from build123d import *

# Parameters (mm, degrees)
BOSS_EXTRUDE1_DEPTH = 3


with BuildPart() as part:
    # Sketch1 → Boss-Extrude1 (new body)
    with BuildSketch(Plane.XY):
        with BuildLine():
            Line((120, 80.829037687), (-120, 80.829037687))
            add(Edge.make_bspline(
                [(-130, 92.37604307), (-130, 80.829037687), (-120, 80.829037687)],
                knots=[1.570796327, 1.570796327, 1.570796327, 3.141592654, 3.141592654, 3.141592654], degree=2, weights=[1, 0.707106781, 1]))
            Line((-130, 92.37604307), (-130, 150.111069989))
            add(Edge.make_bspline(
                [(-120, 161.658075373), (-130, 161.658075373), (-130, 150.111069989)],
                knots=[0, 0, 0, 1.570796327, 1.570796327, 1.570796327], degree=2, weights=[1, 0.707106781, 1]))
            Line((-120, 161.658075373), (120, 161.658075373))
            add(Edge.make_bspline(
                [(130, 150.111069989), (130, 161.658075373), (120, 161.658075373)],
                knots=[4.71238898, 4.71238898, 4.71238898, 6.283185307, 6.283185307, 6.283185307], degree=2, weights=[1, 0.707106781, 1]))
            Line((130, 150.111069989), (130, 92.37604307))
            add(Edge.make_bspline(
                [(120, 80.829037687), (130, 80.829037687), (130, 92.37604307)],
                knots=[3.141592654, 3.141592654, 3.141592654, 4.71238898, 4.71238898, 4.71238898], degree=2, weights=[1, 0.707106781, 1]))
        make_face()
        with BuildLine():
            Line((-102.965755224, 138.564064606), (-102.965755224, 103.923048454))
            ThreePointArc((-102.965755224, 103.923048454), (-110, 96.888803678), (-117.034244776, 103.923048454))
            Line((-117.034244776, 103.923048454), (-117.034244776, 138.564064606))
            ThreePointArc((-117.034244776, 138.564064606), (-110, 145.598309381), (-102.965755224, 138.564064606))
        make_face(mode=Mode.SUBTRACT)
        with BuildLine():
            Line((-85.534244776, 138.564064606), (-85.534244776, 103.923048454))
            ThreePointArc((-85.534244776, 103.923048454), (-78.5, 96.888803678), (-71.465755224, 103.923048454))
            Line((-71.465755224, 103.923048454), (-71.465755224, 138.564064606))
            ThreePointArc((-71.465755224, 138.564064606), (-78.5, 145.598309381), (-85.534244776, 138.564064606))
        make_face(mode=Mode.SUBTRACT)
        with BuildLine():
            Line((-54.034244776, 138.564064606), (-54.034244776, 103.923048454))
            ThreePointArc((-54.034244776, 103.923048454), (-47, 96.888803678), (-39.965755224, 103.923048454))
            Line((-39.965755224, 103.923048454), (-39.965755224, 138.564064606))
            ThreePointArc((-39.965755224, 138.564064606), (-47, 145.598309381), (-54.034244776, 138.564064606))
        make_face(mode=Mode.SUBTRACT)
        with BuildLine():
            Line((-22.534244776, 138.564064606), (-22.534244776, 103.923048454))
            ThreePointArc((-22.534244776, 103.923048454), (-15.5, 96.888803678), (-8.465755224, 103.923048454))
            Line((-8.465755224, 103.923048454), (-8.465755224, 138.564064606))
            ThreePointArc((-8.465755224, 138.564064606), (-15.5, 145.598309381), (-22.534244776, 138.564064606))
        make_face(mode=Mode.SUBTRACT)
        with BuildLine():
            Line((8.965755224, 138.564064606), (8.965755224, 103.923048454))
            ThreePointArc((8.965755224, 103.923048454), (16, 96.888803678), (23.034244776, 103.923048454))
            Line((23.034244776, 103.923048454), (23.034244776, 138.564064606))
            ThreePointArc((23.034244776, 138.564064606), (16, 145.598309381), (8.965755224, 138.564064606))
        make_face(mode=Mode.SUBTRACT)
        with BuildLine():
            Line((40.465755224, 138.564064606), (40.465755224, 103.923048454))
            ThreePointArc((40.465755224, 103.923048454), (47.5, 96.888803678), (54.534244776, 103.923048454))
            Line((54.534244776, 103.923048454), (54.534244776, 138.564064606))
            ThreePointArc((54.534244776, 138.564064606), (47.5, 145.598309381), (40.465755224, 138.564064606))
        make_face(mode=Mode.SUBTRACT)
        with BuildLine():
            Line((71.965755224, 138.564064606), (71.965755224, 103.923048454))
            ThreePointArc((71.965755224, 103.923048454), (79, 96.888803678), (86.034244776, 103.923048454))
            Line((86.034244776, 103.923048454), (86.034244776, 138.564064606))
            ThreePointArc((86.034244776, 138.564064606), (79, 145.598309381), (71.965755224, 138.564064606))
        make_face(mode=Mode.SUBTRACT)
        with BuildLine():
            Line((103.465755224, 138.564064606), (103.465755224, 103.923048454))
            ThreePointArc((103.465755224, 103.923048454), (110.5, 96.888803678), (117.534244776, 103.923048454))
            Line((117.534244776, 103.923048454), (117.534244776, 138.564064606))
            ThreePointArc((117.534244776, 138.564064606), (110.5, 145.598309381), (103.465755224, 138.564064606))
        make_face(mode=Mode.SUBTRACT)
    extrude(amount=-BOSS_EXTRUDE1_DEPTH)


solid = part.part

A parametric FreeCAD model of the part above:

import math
import FreeCAD as App
import Part
import Sketcher

doc = App.newDocument("Part")
body = doc.addObject("PartDesign::Body", "Body")

# Sketch on XY plane
sketch1 = body.newObject("Sketcher::SketchObject", "Sketch")
sketch1.AttachmentSupport = (doc.getObject("XY_Plane"), [""])
sketch1.MapMode = "FlatFace"
sketch1.addGeometry(Part.LineSegment(App.Vector(-120, 80.829038, 0), App.Vector(120, 80.829038, 0)), False)
sketch1.addGeometry(Part.BSplineCurve([App.Vector(120, 80.829038, 0), App.Vector(130, 80.829038, 0), App.Vector(130, 92.376043, 0)], [3, 3], [3.141592654, 4.71238898], False, 2, [1, 0.707106781, 1], False), False)
sketch1.addGeometry(Part.LineSegment(App.Vector(130, 92.376043, 0), App.Vector(130, 150.11107, 0)), False)
sketch1.addGeometry(Part.BSplineCurve([App.Vector(130, 150.11107, 0), App.Vector(130, 161.658075, 0), App.Vector(120, 161.658075, 0)], [3, 3], [4.71238898, 6.283185307], False, 2, [1, 0.707106781, 1], False), False)
sketch1.addGeometry(Part.LineSegment(App.Vector(120, 161.658075, 0), App.Vector(-120, 161.658075, 0)), False)
sketch1.addGeometry(Part.BSplineCurve([App.Vector(-120, 161.658075, 0), App.Vector(-130, 161.658075, 0), App.Vector(-130, 150.11107, 0)], [3, 3], [0, 1.570796327], False, 2, [1, 0.707106781, 1], False), False)
sketch1.addGeometry(Part.LineSegment(App.Vector(-130, 150.11107, 0), App.Vector(-130, 92.376043, 0)), False)
sketch1.addGeometry(Part.BSplineCurve([App.Vector(-130, 92.376043, 0), App.Vector(-130, 80.829038, 0), App.Vector(-120, 80.829038, 0)], [3, 3], [1.570796327, 3.141592654], False, 2, [1, 0.707106781, 1], False), False)
sketch1.addGeometry(Part.ArcOfCircle(Part.Circle(App.Vector(110.5, 138.564065, 0), App.Vector(0, 0, 1), 7.034245), math.radians(0), math.radians(180)), False)
sketch1.addGeometry(Part.LineSegment(App.Vector(117.534245, 138.564065, 0), App.Vector(117.534245, 103.923048, 0)), False)
sketch1.addGeometry(Part.ArcOfCircle(Part.Circle(App.Vector(110.5, 103.923048, 0), App.Vector(0, 0, 1), 7.034245), math.radians(180), math.radians(360)), False)
sketch1.addGeometry(Part.LineSegment(App.Vector(103.465755, 103.923048, 0), App.Vector(103.465755, 138.564065, 0)), False)
sketch1.addGeometry(Part.ArcOfCircle(Part.Circle(App.Vector(79, 138.564065, 0), App.Vector(0, 0, 1), 7.034245), math.radians(0), math.radians(180)), False)
sketch1.addGeometry(Part.LineSegment(App.Vector(86.034245, 138.564065, 0), App.Vector(86.034245, 103.923048, 0)), False)
sketch1.addGeometry(Part.ArcOfCircle(Part.Circle(App.Vector(79, 103.923048, 0), App.Vector(0, 0, 1), 7.034245), math.radians(180), math.radians(360)), False)
sketch1.addGeometry(Part.LineSegment(App.Vector(71.965755, 103.923048, 0), App.Vector(71.965755, 138.564065, 0)), False)
sketch1.addGeometry(Part.ArcOfCircle(Part.Circle(App.Vector(47.5, 138.564065, 0), App.Vector(0, 0, 1), 7.034245), math.radians(0), math.radians(180)), False)
sketch1.addGeometry(Part.LineSegment(App.Vector(54.534245, 138.564065, 0), App.Vector(54.534245, 103.923048, 0)), False)
sketch1.addGeometry(Part.ArcOfCircle(Part.Circle(App.Vector(47.5, 103.923048, 0), App.Vector(0, 0, 1), 7.034245), math.radians(180), math.radians(360)), False)
sketch1.addGeometry(Part.LineSegment(App.Vector(40.465755, 103.923048, 0), App.Vector(40.465755, 138.564065, 0)), False)
sketch1.addGeometry(Part.ArcOfCircle(Part.Circle(App.Vector(16, 138.564065, 0), App.Vector(0, 0, 1), 7.034245), math.radians(0), math.radians(180)), False)
sketch1.addGeometry(Part.LineSegment(App.Vector(23.034245, 138.564065, 0), App.Vector(23.034245, 103.923048, 0)), False)
sketch1.addGeometry(Part.ArcOfCircle(Part.Circle(App.Vector(16, 103.923048, 0), App.Vector(0, 0, 1), 7.034245), math.radians(180), math.radians(360)), False)
sketch1.addGeometry(Part.LineSegment(App.Vector(8.965755, 103.923048, 0), App.Vector(8.965755, 138.564065, 0)), False)
sketch1.addGeometry(Part.ArcOfCircle(Part.Circle(App.Vector(-15.5, 138.564065, 0), App.Vector(0, 0, 1), 7.034245), math.radians(0), math.radians(180)), False)
sketch1.addGeometry(Part.LineSegment(App.Vector(-8.465755, 138.564065, 0), App.Vector(-8.465755, 103.923048, 0)), False)
sketch1.addGeometry(Part.ArcOfCircle(Part.Circle(App.Vector(-15.5, 103.923048, 0), App.Vector(0, 0, 1), 7.034245), math.radians(180), math.radians(360)), False)
sketch1.addGeometry(Part.LineSegment(App.Vector(-22.534245, 103.923048, 0), App.Vector(-22.534245, 138.564065, 0)), False)
sketch1.addGeometry(Part.ArcOfCircle(Part.Circle(App.Vector(-47, 138.564065, 0), App.Vector(0, 0, 1), 7.034245), math.radians(0), math.radians(180)), False)
sketch1.addGeometry(Part.LineSegment(App.Vector(-39.965755, 138.564065, 0), App.Vector(-39.965755, 103.923048, 0)), False)
sketch1.addGeometry(Part.ArcOfCircle(Part.Circle(App.Vector(-47, 103.923048, 0), App.Vector(0, 0, 1), 7.034245), math.radians(180), math.radians(360)), False)
sketch1.addGeometry(Part.LineSegment(App.Vector(-54.034245, 103.923048, 0), App.Vector(-54.034245, 138.564065, 0)), False)
sketch1.addGeometry(Part.ArcOfCircle(Part.Circle(App.Vector(-78.5, 138.564065, 0), App.Vector(0, 0, 1), 7.034245), math.radians(0), math.radians(180)), False)
sketch1.addGeometry(Part.LineSegment(App.Vector(-71.465755, 138.564065, 0), App.Vector(-71.465755, 103.923048, 0)), False)
sketch1.addGeometry(Part.ArcOfCircle(Part.Circle(App.Vector(-78.5, 103.923048, 0), App.Vector(0, 0, 1), 7.034245), math.radians(180), math.radians(360)), False)
sketch1.addGeometry(Part.LineSegment(App.Vector(-85.534245, 103.923048, 0), App.Vector(-85.534245, 138.564065, 0)), False)
sketch1.addGeometry(Part.LineSegment(App.Vector(-102.965755, 138.564065, 0), App.Vector(-102.965755, 103.923048, 0)), False)
sketch1.addGeometry(Part.ArcOfCircle(Part.Circle(App.Vector(-110, 103.923048, 0), App.Vector(0, 0, 1), 7.034245), math.radians(180), math.radians(360)), False)
sketch1.addGeometry(Part.LineSegment(App.Vector(-117.034245, 103.923048, 0), App.Vector(-117.034245, 138.564065, 0)), False)
sketch1.addGeometry(Part.ArcOfCircle(Part.Circle(App.Vector(-110, 138.564065, 0), App.Vector(0, 0, 1), 7.034245), math.radians(0), math.radians(180)), False)
sketch1.addConstraint(Sketcher.Constraint("Block", 1))
sketch1.addConstraint(Sketcher.Constraint("Block", 3))
sketch1.addConstraint(Sketcher.Constraint("Block", 5))
sketch1.addConstraint(Sketcher.Constraint("Block", 7))
sketch1.addConstraint(Sketcher.Constraint("Coincident", 0, 2, 1, 1))
sketch1.addConstraint(Sketcher.Constraint("Coincident", 1, 2, 2, 1))
sketch1.addConstraint(Sketcher.Constraint("Coincident", 2, 2, 3, 1))
sketch1.addConstraint(Sketcher.Constraint("Coincident", 3, 2, 4, 1))
sketch1.addConstraint(Sketcher.Constraint("Coincident", 4, 2, 5, 1))
sketch1.addConstraint(Sketcher.Constraint("Coincident", 5, 2, 6, 1))
sketch1.addConstraint(Sketcher.Constraint("Coincident", 6, 2, 7, 1))
sketch1.addConstraint(Sketcher.Constraint("Coincident", 7, 2, 0, 1))
sketch1.addConstraint(Sketcher.Constraint("Tangent", 8, 1, 9, 1))
sketch1.addConstraint(Sketcher.Constraint("Tangent", 9, 2, 10, 2))
sketch1.addConstraint(Sketcher.Constraint("Tangent", 10, 1, 11, 1))
sketch1.addConstraint(Sketcher.Constraint("Tangent", 11, 2, 8, 2))
sketch1.addConstraint(Sketcher.Constraint("Tangent", 12, 1, 13, 1))
sketch1.addConstraint(Sketcher.Constraint("Tangent", 13, 2, 14, 2))
sketch1.addConstraint(Sketcher.Constraint("Tangent", 14, 1, 15, 1))
sketch1.addConstraint(Sketcher.Constraint("Tangent", 15, 2, 12, 2))
sketch1.addConstraint(Sketcher.Constraint("Tangent", 16, 1, 17, 1))
sketch1.addConstraint(Sketcher.Constraint("Tangent", 17, 2, 18, 2))
sketch1.addConstraint(Sketcher.Constraint("Tangent", 18, 1, 19, 1))
sketch1.addConstraint(Sketcher.Constraint("Tangent", 19, 2, 16, 2))
sketch1.addConstraint(Sketcher.Constraint("Tangent", 20, 1, 21, 1))
sketch1.addConstraint(Sketcher.Constraint("Tangent", 21, 2, 22, 2))
sketch1.addConstraint(Sketcher.Constraint("Tangent", 22, 1, 23, 1))
sketch1.addConstraint(Sketcher.Constraint("Tangent", 23, 2, 20, 2))
sketch1.addConstraint(Sketcher.Constraint("Tangent", 24, 1, 25, 1))
sketch1.addConstraint(Sketcher.Constraint("Tangent", 25, 2, 26, 2))
sketch1.addConstraint(Sketcher.Constraint("Tangent", 26, 1, 27, 1))
sketch1.addConstraint(Sketcher.Constraint("Tangent", 27, 2, 24, 2))
sketch1.addConstraint(Sketcher.Constraint("Tangent", 28, 1, 29, 1))
sketch1.addConstraint(Sketcher.Constraint("Tangent", 29, 2, 30, 2))
sketch1.addConstraint(Sketcher.Constraint("Tangent", 30, 1, 31, 1))
sketch1.addConstraint(Sketcher.Constraint("Tangent", 31, 2, 28, 2))
sketch1.addConstraint(Sketcher.Constraint("Tangent", 32, 1, 33, 1))
sketch1.addConstraint(Sketcher.Constraint("Tangent", 33, 2, 34, 2))
sketch1.addConstraint(Sketcher.Constraint("Tangent", 34, 1, 35, 1))
sketch1.addConstraint(Sketcher.Constraint("Tangent", 35, 2, 32, 2))
sketch1.addConstraint(Sketcher.Constraint("Tangent", 36, 2, 37, 2))
sketch1.addConstraint(Sketcher.Constraint("Tangent", 37, 1, 38, 1))
sketch1.addConstraint(Sketcher.Constraint("Tangent", 38, 2, 39, 2))
sketch1.addConstraint(Sketcher.Constraint("Tangent", 39, 1, 36, 1))
sketch1.addConstraint(Sketcher.Constraint("Vertical", 9))
sketch1.addConstraint(Sketcher.Constraint("Vertical", 11))
sketch1.addConstraint(Sketcher.Constraint("Vertical", 13))
sketch1.addConstraint(Sketcher.Constraint("Vertical", 15))
sketch1.addConstraint(Sketcher.Constraint("Vertical", 17))
sketch1.addConstraint(Sketcher.Constraint("Vertical", 19))
sketch1.addConstraint(Sketcher.Constraint("Vertical", 21))
sketch1.addConstraint(Sketcher.Constraint("Vertical", 23))
sketch1.addConstraint(Sketcher.Constraint("Vertical", 25))
sketch1.addConstraint(Sketcher.Constraint("Vertical", 27))
sketch1.addConstraint(Sketcher.Constraint("Vertical", 29))
sketch1.addConstraint(Sketcher.Constraint("Vertical", 31))
sketch1.addConstraint(Sketcher.Constraint("Vertical", 33))
sketch1.addConstraint(Sketcher.Constraint("Vertical", 35))
sketch1.addConstraint(Sketcher.Constraint("Vertical", 36))
sketch1.addConstraint(Sketcher.Constraint("Vertical", 38))
sketch1.addConstraint(Sketcher.Constraint("Equal", 10, 12))
sketch1.addConstraint(Sketcher.Constraint("Equal", 14, 16))
sketch1.addConstraint(Sketcher.Constraint("Equal", 18, 20))
sketch1.addConstraint(Sketcher.Constraint("Equal", 22, 24))
sketch1.addConstraint(Sketcher.Constraint("Equal", 26, 28))
sketch1.addConstraint(Sketcher.Constraint("Equal", 30, 32))
sketch1.addConstraint(Sketcher.Constraint("Equal", 34, 37))
sketch1.addConstraint(Sketcher.Constraint("Horizontal", 8, 3, 12, 3))
sketch1.addConstraint(Sketcher.Constraint("Horizontal", 10, 3, 14, 3))
sketch1.addConstraint(Sketcher.Constraint("Horizontal", 12, 3, 16, 3))
sketch1.addConstraint(Sketcher.Constraint("Horizontal", 14, 3, 18, 3))
sketch1.addConstraint(Sketcher.Constraint("Horizontal", 16, 3, 20, 3))
sketch1.addConstraint(Sketcher.Constraint("Horizontal", 18, 3, 22, 3))
sketch1.addConstraint(Sketcher.Constraint("Horizontal", 20, 3, 24, 3))
sketch1.addConstraint(Sketcher.Constraint("Horizontal", 22, 3, 26, 3))
sketch1.addConstraint(Sketcher.Constraint("Horizontal", 24, 3, 28, 3))
sketch1.addConstraint(Sketcher.Constraint("Horizontal", 26, 3, 30, 3))
sketch1.addConstraint(Sketcher.Constraint("Horizontal", 28, 3, 32, 3))
sketch1.addConstraint(Sketcher.Constraint("Horizontal", 30, 3, 34, 3))
sketch1.addConstraint(Sketcher.Constraint("Horizontal", 34, 3, 37, 3))
sketch1.addConstraint(Sketcher.Constraint("Horizontal", 32, 3, 39, 3))
sketch1.addConstraint(Sketcher.Constraint("DistanceX", -1, 1, 12, 3, 79.0))
sketch1.addConstraint(Sketcher.Constraint("DistanceX", -1, 1, 20, 3, 16.0))
sketch1.addConstraint(Sketcher.Constraint("DistanceX", 28, 3, -1, 1, 47.0))
sketch1.addConstraint(Sketcher.Constraint("DistanceX", 37, 3, -1, 1, 110.0))
sketch1.addConstraint(Sketcher.Constraint("DistanceX", 16, 3, 8, 3, 63.0))
sketch1.addConstraint(Sketcher.Constraint("DistanceX", 24, 3, 16, 3, 63.0))
sketch1.addConstraint(Sketcher.Constraint("DistanceX", 32, 3, 24, 3, 63.0))
sketch1.addConstraint(Sketcher.Constraint("DistanceX", -1, 1, 8, 3, 110.5))
sketch1.addConstraint(Sketcher.Constraint("Radius", 8, 7.034245))
sketch1.addConstraint(Sketcher.Constraint("DistanceY", 9, 2, 9, 1, 34.641016))
sketch1.addConstraint(Sketcher.Constraint("DistanceY", -1, 1, 10, 3, 103.923048))
pad1 = body.newObject("PartDesign::Pad", "Pad")
pad1.Profile = sketch1
pad1.Length = 3
pad1.Reversed = True

doc.recompute()
